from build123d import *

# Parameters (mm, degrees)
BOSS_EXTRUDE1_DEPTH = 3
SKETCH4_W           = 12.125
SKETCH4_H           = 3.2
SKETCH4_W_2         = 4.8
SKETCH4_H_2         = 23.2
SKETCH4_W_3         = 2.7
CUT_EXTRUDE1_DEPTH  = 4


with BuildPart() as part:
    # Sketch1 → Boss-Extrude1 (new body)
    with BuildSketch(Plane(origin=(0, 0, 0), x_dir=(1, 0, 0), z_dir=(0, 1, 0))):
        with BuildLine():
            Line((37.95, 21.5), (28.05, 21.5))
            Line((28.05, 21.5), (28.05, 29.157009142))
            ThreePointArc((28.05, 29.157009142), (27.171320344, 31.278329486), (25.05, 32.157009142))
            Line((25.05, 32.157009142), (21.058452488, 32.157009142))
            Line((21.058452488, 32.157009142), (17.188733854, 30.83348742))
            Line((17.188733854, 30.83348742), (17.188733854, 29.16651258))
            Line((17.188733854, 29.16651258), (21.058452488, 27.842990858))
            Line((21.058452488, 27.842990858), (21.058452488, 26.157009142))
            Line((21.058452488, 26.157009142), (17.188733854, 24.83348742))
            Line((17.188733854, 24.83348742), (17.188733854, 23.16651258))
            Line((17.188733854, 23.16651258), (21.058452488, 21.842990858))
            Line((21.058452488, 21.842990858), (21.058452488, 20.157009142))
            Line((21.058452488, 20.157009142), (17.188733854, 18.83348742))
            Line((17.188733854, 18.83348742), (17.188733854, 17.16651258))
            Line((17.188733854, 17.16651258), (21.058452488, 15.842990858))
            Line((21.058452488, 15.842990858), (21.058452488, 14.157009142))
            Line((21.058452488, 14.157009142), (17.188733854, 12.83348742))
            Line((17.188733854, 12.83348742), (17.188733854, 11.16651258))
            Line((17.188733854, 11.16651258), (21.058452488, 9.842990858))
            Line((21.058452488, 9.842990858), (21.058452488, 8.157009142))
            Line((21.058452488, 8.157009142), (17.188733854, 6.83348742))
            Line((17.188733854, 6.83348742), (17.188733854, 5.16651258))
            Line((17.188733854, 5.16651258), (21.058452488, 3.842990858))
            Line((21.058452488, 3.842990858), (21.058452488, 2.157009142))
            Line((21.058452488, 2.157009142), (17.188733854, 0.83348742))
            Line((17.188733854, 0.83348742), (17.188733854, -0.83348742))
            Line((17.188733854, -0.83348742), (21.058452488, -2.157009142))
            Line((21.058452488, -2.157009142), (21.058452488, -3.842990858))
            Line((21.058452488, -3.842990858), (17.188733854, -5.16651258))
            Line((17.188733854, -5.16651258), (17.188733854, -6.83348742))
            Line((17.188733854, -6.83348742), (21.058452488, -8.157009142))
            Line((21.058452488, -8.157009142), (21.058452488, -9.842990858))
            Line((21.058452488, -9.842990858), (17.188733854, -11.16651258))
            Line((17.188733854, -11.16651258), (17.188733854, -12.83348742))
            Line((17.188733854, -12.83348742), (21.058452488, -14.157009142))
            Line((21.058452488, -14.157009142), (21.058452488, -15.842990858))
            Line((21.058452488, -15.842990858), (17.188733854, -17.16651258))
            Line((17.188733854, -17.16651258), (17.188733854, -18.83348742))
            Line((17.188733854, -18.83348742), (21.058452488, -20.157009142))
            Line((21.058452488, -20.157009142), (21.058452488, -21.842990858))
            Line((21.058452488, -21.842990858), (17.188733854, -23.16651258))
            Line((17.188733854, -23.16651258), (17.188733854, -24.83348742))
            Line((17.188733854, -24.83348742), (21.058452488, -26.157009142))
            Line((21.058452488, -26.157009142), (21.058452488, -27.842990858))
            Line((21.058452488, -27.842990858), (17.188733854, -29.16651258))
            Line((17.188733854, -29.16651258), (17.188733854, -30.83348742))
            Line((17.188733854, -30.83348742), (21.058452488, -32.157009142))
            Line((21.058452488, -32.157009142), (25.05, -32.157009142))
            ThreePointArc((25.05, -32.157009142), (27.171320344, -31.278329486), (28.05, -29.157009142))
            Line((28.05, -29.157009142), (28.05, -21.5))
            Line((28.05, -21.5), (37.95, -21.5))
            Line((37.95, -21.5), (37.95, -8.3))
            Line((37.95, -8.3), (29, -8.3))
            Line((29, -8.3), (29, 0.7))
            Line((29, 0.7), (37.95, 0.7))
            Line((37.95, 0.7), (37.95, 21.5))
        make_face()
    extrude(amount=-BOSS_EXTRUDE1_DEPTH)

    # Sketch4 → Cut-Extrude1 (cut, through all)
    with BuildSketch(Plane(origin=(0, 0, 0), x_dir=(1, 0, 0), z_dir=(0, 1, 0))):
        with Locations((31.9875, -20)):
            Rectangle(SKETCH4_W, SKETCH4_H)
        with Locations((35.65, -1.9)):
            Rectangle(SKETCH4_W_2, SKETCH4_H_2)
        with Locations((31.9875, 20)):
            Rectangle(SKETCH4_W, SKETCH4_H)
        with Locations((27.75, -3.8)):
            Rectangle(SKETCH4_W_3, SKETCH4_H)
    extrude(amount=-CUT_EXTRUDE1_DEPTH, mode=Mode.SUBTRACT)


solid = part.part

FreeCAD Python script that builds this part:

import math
import FreeCAD as App
import Part
import Sketcher

V = App.Vector
Q = App.Units.Quantity


def add_polygon(sketch, points):
    """Adds a closed chain of lines whose ends are joined by coincident constraints."""
    first, n = sketch.GeometryCount, len(points)
    for a, b in zip(points, points[1:] + points[:1]):
        sketch.addGeometry(Part.LineSegment(App.Vector(*a, 0), App.Vector(*b, 0)), False)
    for i in range(n):
        sketch.addConstraint(Sketcher.Constraint("Coincident", first + i, 2, first + (i + 1) % n, 1))

doc = App.newDocument("Part")
body = doc.addObject("PartDesign::Body", "Body")

# Sketch on XZ plane
sketch1 = body.newObject("Sketcher::SketchObject", "Sketch")
sketch1.AttachmentSupport = (doc.getObject("XZ_Plane"), [""])
sketch1.MapMode = "FlatFace"
sketch1.addGeometry([
    Part.LineSegment(V(38, -21.5, 0), V(28.1, -21.5, 0)),  # 0
    Part.LineSegment(V(28.1, -21.5, 0), V(28.1, -29.2, 0)),  # 1
    Part.ArcOfCircle(Part.Circle(V(25.1, -29.2, 0), V(0, 0, 1), 3), math.radians(-90), math.radians(0)),  # 2
    Part.LineSegment(V(25.1, -32.2, 0), V(21.1, -32.2, 0)),  # 3
    Part.LineSegment(V(21.1, -32.2, 0), V(17.2, -30.8, 0)),  # 4
    Part.LineSegment(V(17.2, -30.8, 0), V(17.2, -29.2, 0)),  # 5
    Part.LineSegment(V(17.2, -29.2, 0), V(21.1, -27.8, 0)),  # 6
    Part.LineSegment(V(21.1, -27.8, 0), V(21.1, -26.2, 0)),  # 7
    Part.LineSegment(V(21.1, -26.2, 0), V(17.2, -24.8, 0)),  # 8
    Part.LineSegment(V(17.2, -24.8, 0), V(17.2, -23.2, 0)),  # 9
    Part.LineSegment(V(17.2, -23.2, 0), V(21.1, -21.8, 0)),  # 10
    Part.LineSegment(V(21.1, -21.8, 0), V(21.1, -20.2, 0)),  # 11
    Part.LineSegment(V(21.1, -20.2, 0), V(17.2, -18.8, 0)),  # 12
    Part.LineSegment(V(17.2, -18.8, 0), V(17.2, -17.2, 0)),  # 13
    Part.LineSegment(V(17.2, -17.2, 0), V(21.1, -15.8, 0)),  # 14
    Part.LineSegment(V(21.1, -15.8, 0), V(21.1, -14.2, 0)),  # 15
    Part.LineSegment(V(21.1, -14.2, 0), V(17.2, -12.8, 0)),  # 16
    Part.LineSegment(V(17.2, -12.8, 0), V(17.2, -11.2, 0)),  # 17
    Part.LineSegment(V(17.2, -11.2, 0), V(21.1, -9.8, 0)),  # 18
    Part.LineSegment(V(21.1, -9.8, 0), V(21.1, -8.2, 0)),  # 19
    Part.LineSegment(V(21.1, -8.2, 0), V(17.2, -6.8, 0)),  # 20
    Part.LineSegment(V(17.2, -6.8, 0), V(17.2, -5.2, 0)),  # 21
    Part.LineSegment(V(17.2, -5.2, 0), V(21.1, -3.8, 0)),  # 22
    Part.LineSegment(V(21.1, -3.8, 0), V(21.1, -2.2, 0)),  # 23
    Part.LineSegment(V(21.1, -2.2, 0), V(17.2, -0.8, 0)),  # 24
    Part.LineSegment(V(17.2, -0.8, 0), V(17.2, 0.8, 0)),  # 25
    Part.LineSegment(V(17.2, 0.8, 0), V(21.1, 2.2, 0)),  # 26
    Part.LineSegment(V(21.1, 2.2, 0), V(21.1, 3.8, 0)),  # 27
    Part.LineSegment(V(21.1, 3.8, 0), V(17.2, 5.2, 0)),  # 28
    Part.LineSegment(V(17.2, 5.2, 0), V(17.2, 6.8, 0)),  # 29
    Part.LineSegment(V(17.2, 6.8, 0), V(21.1, 8.2, 0)),  # 30
    Part.LineSegment(V(21.1, 8.2, 0), V(21.1, 9.8, 0)),  # 31
    Part.LineSegment(V(21.1, 9.8, 0), V(17.2, 11.2, 0)),  # 32
    Part.LineSegment(V(17.2, 11.2, 0), V(17.2, 12.8, 0)),  # 33
    Part.LineSegment(V(17.2, 12.8, 0), V(21.1, 14.2, 0)),  # 34
    Part.LineSegment(V(21.1, 14.2, 0), V(21.1, 15.8, 0)),  # 35
    Part.LineSegment(V(21.1, 15.8, 0), V(17.2, 17.2, 0)),  # 36
    Part.LineSegment(V(17.2, 17.2, 0), V(17.2, 18.8, 0)),  # 37
    Part.LineSegment(V(17.2, 18.8, 0), V(21.1, 20.2, 0)),  # 38
    Part.LineSegment(V(21.1, 20.2, 0), V(21.1, 21.8, 0)),  # 39
    Part.LineSegment(V(21.1, 21.8, 0), V(17.2, 23.2, 0)),  # 40
    Part.LineSegment(V(17.2, 23.2, 0), V(17.2, 24.8, 0)),  # 41
    Part.LineSegment(V(17.2, 24.8, 0), V(21.1, 26.2, 0)),  # 42
    Part.LineSegment(V(21.1, 26.2, 0), V(21.1, 27.8, 0)),  # 43
    Part.LineSegment(V(21.1, 27.8, 0), V(17.2, 29.2, 0)),  # 44
    Part.LineSegment(V(17.2, 29.2, 0), V(17.2, 30.8, 0)),  # 45
    Part.LineSegment(V(17.2, 30.8, 0), V(21.1, 32.2, 0)),  # 46
    Part.LineSegment(V(21.1, 32.2, 0), V(25.1, 32.2, 0)),  # 47
    Part.ArcOfCircle(Part.Circle(V(25.1, 29.2, 0), V(0, 0, 1), 3), math.radians(0), math.radians(90)),  # 48
    Part.LineSegment(V(28.1, 29.2, 0), V(28.1, 21.5, 0)),  # 49
    Part.LineSegment(V(28.1, 21.5, 0), V(38, 21.5, 0)),  # 50
    Part.LineSegment(V(38, 21.5, 0), V(38, 8.3, 0)),  # 51
    Part.LineSegment(V(38, 8.3, 0), V(29, 8.3, 0)),  # 52
    Part.LineSegment(V(29, 8.3, 0), V(29, -0.7, 0)),  # 53
    Part.LineSegment(V(29, -0.7, 0), V(38, -0.7, 0)),  # 54
    Part.LineSegment(V(38, -0.7, 0), V(38, -21.5, 0)),  # 55
], False)
sketch1.addConstraint([
    Sketcher.Constraint("Coincident", 0, 2, 1, 1),
    Sketcher.Constraint("Tangent", 1, 2, 2, 2),
    Sketcher.Constraint("Tangent", 2, 1, 3, 1),
    Sketcher.Constraint("Coincident", 3, 2, 4, 1),
    Sketcher.Constraint("Coincident", 4, 2, 5, 1),
    Sketcher.Constraint("Coincident", 5, 2, 6, 1),
    Sketcher.Constraint("Coincident", 6, 2, 7, 1),
    Sketcher.Constraint("Coincident", 7, 2, 8, 1),
    Sketcher.Constraint("Coincident", 8, 2, 9, 1),
    Sketcher.Constraint("Coincident", 9, 2, 10, 1),
    Sketcher.Constraint("Coincident", 10, 2, 11, 1),
    Sketcher.Constraint("Coincident", 11, 2, 12, 1),
    Sketcher.Constraint("Coincident", 12, 2, 13, 1),
    Sketcher.Constraint("Coincident", 13, 2, 14, 1),
    Sketcher.Constraint("Coincident", 14, 2, 15, 1),
    Sketcher.Constraint("Coincident", 15, 2, 16, 1),
    Sketcher.Constraint("Coincident", 16, 2, 17, 1),
    Sketcher.Constraint("Coincident", 17, 2, 18, 1),
    Sketcher.Constraint("Coincident", 18, 2, 19, 1),
    Sketcher.Constraint("Coincident", 19, 2, 20, 1),
    Sketcher.Constraint("Coincident", 20, 2, 21, 1),
    Sketcher.Constraint("Coincident", 21, 2, 22, 1),
    Sketcher.Constraint("Coincident", 22, 2, 23, 1),
    Sketcher.Constraint("Coincident", 23, 2, 24, 1),
    Sketcher.Constraint("Coincident", 24, 2, 25, 1),
    Sketcher.Constraint("Coincident", 25, 2, 26, 1),
    Sketcher.Constraint("Coincident", 26, 2, 27, 1),
    Sketcher.Constraint("Coincident", 27, 2, 28, 1),
    Sketcher.Constraint("Coincident", 28, 2, 29, 1),
    Sketcher.Constraint("Coincident", 29, 2, 30, 1),
    Sketcher.Constraint("Coincident", 30, 2, 31, 1),
    Sketcher.Constraint("Coincident", 31, 2, 32, 1),
    Sketcher.Constraint("Coincident", 32, 2, 33, 1),
    Sketcher.Constraint("Coincident", 33, 2, 34, 1),
    Sketcher.Constraint("Coincident", 34, 2, 35, 1),
    Sketcher.Constraint("Coincident", 35, 2, 36, 1),
    Sketcher.Constraint("Coincident", 36, 2, 37, 1),
    Sketcher.Constraint("Coincident", 37, 2, 38, 1),
    Sketcher.Constraint("Coincident", 38, 2, 39, 1),
    Sketcher.Constraint("Coincident", 39, 2, 40, 1),
    Sketcher.Constraint("Coincident", 40, 2, 41, 1),
    Sketcher.Constraint("Coincident", 41, 2, 42, 1),
    Sketcher.Constraint("Coincident", 42, 2, 43, 1),
    Sketcher.Constraint("Coincident", 43, 2, 44, 1),
    Sketcher.Constraint("Coincident", 44, 2, 45, 1),
    Sketcher.Constraint("Coincident", 45, 2, 46, 1),
    Sketcher.Constraint("Coincident", 46, 2, 47, 1),
    Sketcher.Constraint("Tangent", 47, 2, 48, 2),
    Sketcher.Constraint("Tangent", 48, 1, 49, 1),
    Sketcher.Constraint("Coincident", 49, 2, 50, 1),
    Sketcher.Constraint("Coincident", 50, 2, 51, 1),
    Sketcher.Constraint("Coincident", 51, 2, 52, 1),
    Sketcher.Constraint("Coincident", 52, 2, 53, 1),
    Sketcher.Constraint("Coincident", 53, 2, 54, 1),
    Sketcher.Constraint("Coincident", 54, 2, 55, 1),
    Sketcher.Constraint("Coincident", 55, 2, 0, 1),
    Sketcher.Constraint("Horizontal", 0),
    Sketcher.Constraint("Vertical", 1),
    Sketcher.Constraint("Horizontal", 3),
    Sketcher.Constraint("Vertical", 5),
    Sketcher.Constraint("Vertical", 7),
    Sketcher.Constraint("Vertical", 9),
    Sketcher.Constraint("Vertical", 11),
    Sketcher.Constraint("Vertical", 13),
    Sketcher.Constraint("Vertical", 15),
    Sketcher.Constraint("Vertical", 17),
    Sketcher.Constraint("Vertical", 19),
    Sketcher.Constraint("Vertical", 21),
    Sketcher.Constraint("Vertical", 23),
    Sketcher.Constraint("Vertical", 25),
    Sketcher.Constraint("Vertical", 27),
    Sketcher.Constraint("Vertical", 29),
    Sketcher.Constraint("Vertical", 31),
    Sketcher.Constraint("Vertical", 33),
    Sketcher.Constraint("Vertical", 35),
    Sketcher.Constraint("Vertical", 37),
    Sketcher.Constraint("Vertical", 39),
    Sketcher.Constraint("Vertical", 41),
    Sketcher.Constraint("Vertical", 43),
    Sketcher.Constraint("Vertical", 45),
    Sketcher.Constraint("Horizontal", 47),
    Sketcher.Constraint("Vertical", 49),
    Sketcher.Constraint("Horizontal", 50),
    Sketcher.Constraint("Vertical", 51),
    Sketcher.Constraint("Horizontal", 52),
    Sketcher.Constraint("Vertical", 53),
    Sketcher.Constraint("Horizontal", 54),
    Sketcher.Constraint("Vertical", 55),
    Sketcher.Constraint("Equal", 2, 48),
    Sketcher.Constraint("Symmetric", 2, 3, 48, 3, -1),
    Sketcher.Constraint("Symmetric", 23, 2, 26, 2, -1),
    Sketcher.Constraint("Symmetric", 21, 2, 28, 2, -1),
    Sketcher.Constraint("Symmetric", 19, 2, 30, 2, -1),
    Sketcher.Constraint("Symmetric", 17, 2, 32, 2, -1),
    Sketcher.Constraint("Symmetric", 15, 2, 34, 2, -1),
    Sketcher.Constraint("Symmetric", 13, 2, 36, 2, -1),
    Sketcher.Constraint("Symmetric", 11, 2, 38, 2, -1),
    Sketcher.Constraint("Symmetric", 9, 2, 40, 2, -1),
    Sketcher.Constraint("Symmetric", 7, 2, 42, 2, -1),
    Sketcher.Constraint("Symmetric", 5, 2, 44, 2, -1),
    Sketcher.Constraint("Symmetric", 50, 2, 55, 2, -1),
    Sketcher.Constraint("Parallel", 4, 8),
    Sketcher.Constraint("Parallel", 6, 10),
    Sketcher.Constraint("Parallel", 8, 12),
    Sketcher.Constraint("Parallel", 10, 14),
    Sketcher.Constraint("Parallel", 12, 16),
    Sketcher.Constraint("Parallel", 14, 18),
    Sketcher.Constraint("Parallel", 16, 20),
    Sketcher.Constraint("Parallel", 18, 22),
    Sketcher.Constraint("Parallel", 20, 24),
    Sketcher.Constraint("Parallel", 22, 26),
    Sketcher.Constraint("Parallel", 24, 28),
    Sketcher.Constraint("Parallel", 26, 30),
    Sketcher.Constraint("Parallel", 28, 32),
    Sketcher.Constraint("Parallel", 30, 34),
    Sketcher.Constraint("Parallel", 32, 36),
    Sketcher.Constraint("Parallel", 34, 38),
    Sketcher.Constraint("Parallel", 36, 40),
    Sketcher.Constraint("Parallel", 38, 42),
    Sketcher.Constraint("Parallel", 40, 44),
    Sketcher.Constraint("Parallel", 42, 46),
    Sketcher.Constraint("Vertical", 3, 2, 6, 2),
    Sketcher.Constraint("Vertical", 5, 2, 8, 2),
    Sketcher.Constraint("Vertical", 7, 2, 10, 2),
    Sketcher.Constraint("Vertical", 9, 2, 12, 2),
    Sketcher.Constraint("Vertical", 11, 2, 14, 2),
    Sketcher.Constraint("Vertical", 13, 2, 16, 2),
    Sketcher.Constraint("Vertical", 15, 2, 18, 2),
    Sketcher.Constraint("Vertical", 17, 2, 20, 2),
    Sketcher.Constraint("Vertical", 19, 2, 22, 2),
    Sketcher.Constraint("Vertical", 21, 2, 24, 2),
    Sketcher.Constraint("Vertical", 43, 2, 46, 2),
    Sketcher.Constraint("Equal", 5, 9),
    Sketcher.Constraint("Equal", 7, 11),
    Sketcher.Constraint("Equal", 9, 13),
    Sketcher.Constraint("Equal", 11, 15),
    Sketcher.Constraint("Equal", 13, 17),
    Sketcher.Constraint("Equal", 15, 19),
    Sketcher.Constraint("Equal", 17, 21),
    Sketcher.Constraint("Equal", 19, 23),
    Sketcher.Constraint("Equal", 21, 25),
    Sketcher.Constraint("Equal", 23, 27),
    Sketcher.Constraint("Radius", 2, Q("3 mm")),
    Sketcher.Constraint("DistanceY", 53, 2, 53, 1, Q("9 mm")),
    Sketcher.Constraint("DistanceX", 0, 2, 0, 1, Q("9.9 mm")),
    Sketcher.Constraint("DistanceY", 51, 2, 51, 1, Q("13.2 mm")),
    Sketcher.Constraint("DistanceY", 55, 2, 55, 1, Q("20.8 mm")),
    Sketcher.Constraint("DistanceX", -1, 1, 52, 2, Q("29 mm")),
    Sketcher.Constraint("DistanceY", 2, 3, 7, 2, Q("3 mm")),
    Sketcher.Constraint("DistanceX", 52, 2, 52, 1, Q("8.95 mm")),
    Sketcher.Constraint("DistanceY", 1, 2, 1, 1, Q("7.657009 mm")),
    Sketcher.Constraint("DistanceX", 3, 2, 3, 1, Q("3.991548 mm")),
    Sketcher.Constraint("DistanceY", 5, 1, 5, 2, Q("1.666975 mm")),
    Sketcher.Constraint("DistanceX", 4, 2, 3, 2, Q("3.869719 mm")),
])
pad1 = body.newObject("PartDesign::Pad", "Pad")
pad1.Profile = sketch1
pad1.Length = 3

# Sketch on XZ plane
sketch2 = body.newObject("Sketcher::SketchObject", "Sketch001")
sketch2.AttachmentSupport = (doc.getObject("XZ_Plane"), [""])
sketch2.MapMode = "FlatFace"
add_polygon(sketch2, [(25.9, 18.4), (25.9, 21.6), (38, 21.6), (38, 18.4)])  # lines 0-3
add_polygon(sketch2, [(33.2, -9.7), (33.2, 13.5), (38, 13.5), (38, -9.7)])  # lines 4-7
add_polygon(sketch2, [(25.9, -21.6), (25.9, -18.4), (38, -18.4), (38, -21.6)])  # lines 8-11
add_polygon(sketch2, [(26.4, 2.2), (26.4, 5.4), (29.1, 5.4), (29.1, 2.2)])  # lines 12-15
sketch2.addConstraint([
    Sketcher.Constraint("Vertical", 0),
    Sketcher.Constraint("Horizontal", 1),
    Sketcher.Constraint("Vertical", 2),
    Sketcher.Constraint("Horizontal", 3),
    Sketcher.Constraint("Vertical", 4),
    Sketcher.Constraint("Horizontal", 5),
    Sketcher.Constraint("Vertical", 6),
    Sketcher.Constraint("Horizontal", 7),
    Sketcher.Constraint("Vertical", 8),
    Sketcher.Constraint("Horizontal", 9),
    Sketcher.Constraint("Vertical", 10),
    Sketcher.Constraint("Horizontal", 11),
    Sketcher.Constraint("Vertical", 12),
    Sketcher.Constraint("Horizontal", 13),
    Sketcher.Constraint("Vertical", 14),
    Sketcher.Constraint("Horizontal", 15),
    Sketcher.Constraint("Symmetric", 3, 2, 8, 2, -1),
    Sketcher.Constraint("Symmetric", 1, 2, 10, 2, -1),
    Sketcher.Constraint("Vertical", 2, 2, 5, 2),
    Sketcher.Constraint("Equal", 10, 12),
    Sketcher.Constraint("DistanceX", 5, 1, 5, 2, Q("4.8 mm")),
    Sketcher.Constraint("DistanceX", 13, 1, 13, 2, Q("2.7 mm")),
    Sketcher.Constraint("DistanceY", 0, 1, 0, 2, Q("3.2 mm")),
    Sketcher.Constraint("DistanceY", 4, 1, 4, 2, Q("23.2 mm")),
    Sketcher.Constraint("DistanceY", 12, 2, 3, 2, Q("13 mm")),
    Sketcher.Constraint("DistanceY", -1, 1, 0, 2, Q("21.6 mm")),
    Sketcher.Constraint("DistanceY", -1, 1, 4, 2, Q("13.5 mm")),
    Sketcher.Constraint("DistanceX", -1, 1, 12, 2, Q("26.4 mm")),
    Sketcher.Constraint("DistanceX", 1, 1, 1, 2, Q("12.125 mm")),
    Sketcher.Constraint("DistanceX", -1, 1, 1, 2, Q("38.05 mm")),
])
pocket1 = body.newObject("PartDesign::Pocket", "Pocket")
pocket1.Profile = sketch2
pocket1.Type = "ThroughAll"
pocket1.Reversed = True

doc.recompute()
